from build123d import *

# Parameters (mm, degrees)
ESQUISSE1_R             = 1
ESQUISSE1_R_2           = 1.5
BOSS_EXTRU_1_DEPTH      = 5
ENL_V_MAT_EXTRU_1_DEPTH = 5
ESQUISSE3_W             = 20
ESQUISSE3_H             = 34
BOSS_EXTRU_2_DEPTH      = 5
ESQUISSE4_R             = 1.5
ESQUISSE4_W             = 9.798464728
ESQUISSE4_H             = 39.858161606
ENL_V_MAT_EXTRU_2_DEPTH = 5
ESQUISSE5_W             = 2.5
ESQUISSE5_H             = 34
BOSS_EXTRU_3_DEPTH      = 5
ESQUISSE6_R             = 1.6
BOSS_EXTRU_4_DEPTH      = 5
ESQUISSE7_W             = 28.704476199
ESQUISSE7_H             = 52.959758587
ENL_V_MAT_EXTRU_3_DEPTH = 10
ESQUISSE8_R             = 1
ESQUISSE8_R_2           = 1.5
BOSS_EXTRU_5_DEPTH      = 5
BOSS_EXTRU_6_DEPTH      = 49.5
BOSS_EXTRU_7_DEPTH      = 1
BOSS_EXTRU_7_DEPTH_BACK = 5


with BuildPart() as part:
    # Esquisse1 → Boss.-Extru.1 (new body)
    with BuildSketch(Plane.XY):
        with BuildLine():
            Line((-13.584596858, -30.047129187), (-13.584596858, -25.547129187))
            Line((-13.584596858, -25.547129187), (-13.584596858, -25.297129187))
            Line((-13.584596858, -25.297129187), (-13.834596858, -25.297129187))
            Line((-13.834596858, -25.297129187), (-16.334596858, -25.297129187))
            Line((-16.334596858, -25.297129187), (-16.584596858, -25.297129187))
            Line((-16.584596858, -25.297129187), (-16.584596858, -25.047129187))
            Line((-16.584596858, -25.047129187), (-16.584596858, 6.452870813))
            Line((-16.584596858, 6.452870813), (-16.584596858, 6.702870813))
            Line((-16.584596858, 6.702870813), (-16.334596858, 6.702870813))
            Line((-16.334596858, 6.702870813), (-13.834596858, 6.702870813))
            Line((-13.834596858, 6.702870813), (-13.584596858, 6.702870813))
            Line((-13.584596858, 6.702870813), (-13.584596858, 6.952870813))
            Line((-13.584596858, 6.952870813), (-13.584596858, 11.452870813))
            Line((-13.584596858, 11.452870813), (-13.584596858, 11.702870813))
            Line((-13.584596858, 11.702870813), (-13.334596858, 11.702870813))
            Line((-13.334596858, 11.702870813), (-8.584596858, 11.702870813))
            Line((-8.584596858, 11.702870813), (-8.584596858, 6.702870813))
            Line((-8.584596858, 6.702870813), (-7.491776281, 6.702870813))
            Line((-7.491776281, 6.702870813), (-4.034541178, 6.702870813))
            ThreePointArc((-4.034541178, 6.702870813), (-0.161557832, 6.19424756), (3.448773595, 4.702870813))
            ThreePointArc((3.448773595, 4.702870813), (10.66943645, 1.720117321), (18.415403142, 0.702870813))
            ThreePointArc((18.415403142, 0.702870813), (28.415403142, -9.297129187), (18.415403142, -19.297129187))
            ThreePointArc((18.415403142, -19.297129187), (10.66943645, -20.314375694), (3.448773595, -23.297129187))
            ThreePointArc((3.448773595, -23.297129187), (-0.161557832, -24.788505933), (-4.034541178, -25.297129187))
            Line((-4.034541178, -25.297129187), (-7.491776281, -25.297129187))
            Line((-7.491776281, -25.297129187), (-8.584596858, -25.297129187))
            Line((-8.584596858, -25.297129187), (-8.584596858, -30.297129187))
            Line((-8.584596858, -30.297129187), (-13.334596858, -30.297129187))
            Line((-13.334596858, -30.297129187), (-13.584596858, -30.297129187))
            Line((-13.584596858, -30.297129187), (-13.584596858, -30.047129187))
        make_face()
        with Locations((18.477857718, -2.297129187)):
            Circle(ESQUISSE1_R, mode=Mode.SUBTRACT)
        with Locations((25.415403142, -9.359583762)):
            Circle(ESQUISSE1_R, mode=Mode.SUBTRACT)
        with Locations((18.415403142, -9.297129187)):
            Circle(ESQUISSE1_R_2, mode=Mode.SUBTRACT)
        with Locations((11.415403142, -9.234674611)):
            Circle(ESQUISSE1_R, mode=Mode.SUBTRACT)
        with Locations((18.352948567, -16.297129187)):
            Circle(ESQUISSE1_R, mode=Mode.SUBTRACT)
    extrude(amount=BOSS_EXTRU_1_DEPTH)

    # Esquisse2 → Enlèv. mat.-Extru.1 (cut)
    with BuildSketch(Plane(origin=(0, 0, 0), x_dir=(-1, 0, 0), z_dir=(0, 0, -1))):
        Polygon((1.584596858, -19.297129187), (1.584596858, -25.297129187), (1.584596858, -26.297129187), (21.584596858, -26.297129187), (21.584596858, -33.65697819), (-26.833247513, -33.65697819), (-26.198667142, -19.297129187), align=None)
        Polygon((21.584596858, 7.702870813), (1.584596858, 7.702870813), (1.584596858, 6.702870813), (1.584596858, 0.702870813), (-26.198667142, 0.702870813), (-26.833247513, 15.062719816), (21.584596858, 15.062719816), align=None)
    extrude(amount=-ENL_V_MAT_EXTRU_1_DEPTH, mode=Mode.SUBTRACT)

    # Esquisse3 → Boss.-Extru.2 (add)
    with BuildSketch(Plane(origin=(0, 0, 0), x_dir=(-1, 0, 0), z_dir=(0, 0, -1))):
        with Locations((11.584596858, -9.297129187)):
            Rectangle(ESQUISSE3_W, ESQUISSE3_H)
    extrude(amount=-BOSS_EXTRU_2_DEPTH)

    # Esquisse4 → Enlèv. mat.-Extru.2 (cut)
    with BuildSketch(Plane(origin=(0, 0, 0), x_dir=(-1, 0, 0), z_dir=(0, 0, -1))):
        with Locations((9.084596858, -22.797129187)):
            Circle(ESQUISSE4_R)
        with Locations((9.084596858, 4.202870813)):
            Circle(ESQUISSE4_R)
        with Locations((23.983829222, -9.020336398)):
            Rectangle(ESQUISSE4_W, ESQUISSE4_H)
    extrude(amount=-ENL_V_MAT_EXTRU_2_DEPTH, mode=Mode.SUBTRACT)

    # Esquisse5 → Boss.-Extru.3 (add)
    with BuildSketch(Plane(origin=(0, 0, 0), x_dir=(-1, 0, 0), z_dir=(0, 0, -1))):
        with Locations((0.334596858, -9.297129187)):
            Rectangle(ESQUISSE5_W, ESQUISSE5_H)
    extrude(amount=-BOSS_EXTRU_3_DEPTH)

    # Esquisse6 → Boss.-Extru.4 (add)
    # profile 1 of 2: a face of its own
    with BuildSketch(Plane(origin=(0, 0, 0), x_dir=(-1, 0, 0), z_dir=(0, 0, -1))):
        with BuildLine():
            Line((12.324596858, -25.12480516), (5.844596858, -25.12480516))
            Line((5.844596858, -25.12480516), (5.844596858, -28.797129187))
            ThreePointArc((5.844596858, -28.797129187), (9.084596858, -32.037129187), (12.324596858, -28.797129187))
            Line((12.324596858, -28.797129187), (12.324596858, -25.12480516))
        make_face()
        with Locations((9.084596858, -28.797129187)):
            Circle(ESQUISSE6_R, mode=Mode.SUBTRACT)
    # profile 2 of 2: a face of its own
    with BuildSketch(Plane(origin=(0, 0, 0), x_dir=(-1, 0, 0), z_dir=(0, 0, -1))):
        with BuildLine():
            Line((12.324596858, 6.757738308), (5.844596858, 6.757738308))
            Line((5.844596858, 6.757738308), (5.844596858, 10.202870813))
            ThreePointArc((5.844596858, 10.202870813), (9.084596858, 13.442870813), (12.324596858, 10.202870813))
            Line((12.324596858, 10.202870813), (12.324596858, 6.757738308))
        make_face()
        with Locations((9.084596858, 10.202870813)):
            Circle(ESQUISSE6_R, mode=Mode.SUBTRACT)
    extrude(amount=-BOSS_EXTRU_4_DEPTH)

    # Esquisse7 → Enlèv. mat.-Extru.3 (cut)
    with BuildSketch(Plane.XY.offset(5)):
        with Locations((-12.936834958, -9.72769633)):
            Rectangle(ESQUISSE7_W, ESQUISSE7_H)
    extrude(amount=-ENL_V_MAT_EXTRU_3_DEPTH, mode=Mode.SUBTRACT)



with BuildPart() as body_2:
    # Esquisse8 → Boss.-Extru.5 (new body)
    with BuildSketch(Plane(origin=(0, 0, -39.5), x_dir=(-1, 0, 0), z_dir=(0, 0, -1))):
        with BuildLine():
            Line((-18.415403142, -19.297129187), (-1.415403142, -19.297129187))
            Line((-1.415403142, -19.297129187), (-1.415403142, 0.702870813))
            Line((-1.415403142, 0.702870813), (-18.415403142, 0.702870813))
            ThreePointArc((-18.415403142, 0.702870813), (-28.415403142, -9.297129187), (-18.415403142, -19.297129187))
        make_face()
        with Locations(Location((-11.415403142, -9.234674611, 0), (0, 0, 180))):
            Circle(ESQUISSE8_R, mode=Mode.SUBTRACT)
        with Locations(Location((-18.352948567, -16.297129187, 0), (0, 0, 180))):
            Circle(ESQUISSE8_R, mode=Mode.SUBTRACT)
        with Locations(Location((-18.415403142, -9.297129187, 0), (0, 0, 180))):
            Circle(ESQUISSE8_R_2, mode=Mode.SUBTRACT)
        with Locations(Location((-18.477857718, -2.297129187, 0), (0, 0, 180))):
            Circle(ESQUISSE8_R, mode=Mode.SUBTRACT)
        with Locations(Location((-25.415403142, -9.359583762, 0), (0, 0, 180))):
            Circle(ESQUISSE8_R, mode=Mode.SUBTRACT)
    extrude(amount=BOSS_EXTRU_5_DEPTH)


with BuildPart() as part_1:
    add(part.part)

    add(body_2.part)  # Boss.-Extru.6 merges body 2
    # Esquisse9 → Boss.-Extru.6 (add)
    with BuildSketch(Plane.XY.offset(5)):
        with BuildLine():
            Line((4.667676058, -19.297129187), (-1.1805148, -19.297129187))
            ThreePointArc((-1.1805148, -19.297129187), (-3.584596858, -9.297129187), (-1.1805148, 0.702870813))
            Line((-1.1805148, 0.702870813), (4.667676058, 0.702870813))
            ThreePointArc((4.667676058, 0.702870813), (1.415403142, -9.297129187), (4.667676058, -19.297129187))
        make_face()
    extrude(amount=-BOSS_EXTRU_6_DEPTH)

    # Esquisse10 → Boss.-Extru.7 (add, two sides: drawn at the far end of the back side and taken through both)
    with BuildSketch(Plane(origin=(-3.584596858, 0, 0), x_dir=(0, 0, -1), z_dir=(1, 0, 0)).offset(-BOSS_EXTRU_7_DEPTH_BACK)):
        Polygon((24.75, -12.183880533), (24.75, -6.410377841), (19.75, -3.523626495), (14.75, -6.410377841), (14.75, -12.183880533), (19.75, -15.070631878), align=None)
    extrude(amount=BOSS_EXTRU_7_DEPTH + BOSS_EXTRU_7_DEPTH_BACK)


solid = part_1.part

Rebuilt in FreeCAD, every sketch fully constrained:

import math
import FreeCAD as App
import Part
import Sketcher
Q = App.Units.Quantity

doc = App.newDocument("Part")
body = doc.addObject("PartDesign::Body", "Body")

# Sketch on XY plane
sketch1 = body.newObject("Sketcher::SketchObject", "Sketch")
sketch1.AttachmentSupport = (doc.getObject("XY_Plane"), [""])
sketch1.MapMode = "FlatFace"
sketch1.addGeometry(Part.LineSegment(App.Vector(-16.6, -25.3, 0), App.Vector(-13.6, -25.3, 0)), False)
sketch1.addGeometry(Part.LineSegment(App.Vector(-13.6, -25.3, 0), App.Vector(-13.6, -30.3, 0)), False)
sketch1.addGeometry(Part.LineSegment(App.Vector(-13.6, -30.3, 0), App.Vector(-8.6, -30.3, 0)), False)
sketch1.addGeometry(Part.LineSegment(App.Vector(-8.6, -30.3, 0), App.Vector(-8.6, -25.3, 0)), False)
sketch1.addGeometry(Part.LineSegment(App.Vector(-8.6, -25.3, 0), App.Vector(-4, -25.3, 0)), False)
sketch1.addGeometry(Part.ArcOfCircle(Part.Circle(App.Vector(-4, -10.3, 0), App.Vector(0, 0, 1), 15), math.radians(-90), math.radians(-60)), False)
sketch1.addGeometry(Part.ArcOfCircle(Part.Circle(App.Vector(18.4, -49.3, 0), App.Vector(0, 0, 1), 30), math.radians(90), math.radians(120)), False)
sketch1.addGeometry(Part.ArcOfCircle(Part.Circle(App.Vector(18.4, -9.3, 0), App.Vector(0, 0, 1), 10), math.radians(-90), math.radians(90)), False)
sketch1.addGeometry(Part.ArcOfCircle(Part.Circle(App.Vector(18.4, 30.7, 0), App.Vector(0, 0, 1), 30), math.radians(-120), math.radians(-90)), False)
sketch1.addGeometry(Part.ArcOfCircle(Part.Circle(App.Vector(-4, -8.3, 0), App.Vector(0, 0, 1), 15), math.radians(60), math.radians(90)), False)
sketch1.addGeometry(Part.LineSegment(App.Vector(-4, 6.7, 0), App.Vector(-8.6, 6.7, 0)), False)
sketch1.addGeometry(Part.LineSegment(App.Vector(-8.6, 6.7, 0), App.Vector(-8.6, 11.7, 0)), False)
sketch1.addGeometry(Part.LineSegment(App.Vector(-8.6, 11.7, 0), App.Vector(-13.6, 11.7, 0)), False)
sketch1.addGeometry(Part.LineSegment(App.Vector(-13.6, 11.7, 0), App.Vector(-13.6, 6.7, 0)), False)
sketch1.addGeometry(Part.LineSegment(App.Vector(-13.6, 6.7, 0), App.Vector(-16.6, 6.7, 0)), False)
sketch1.addGeometry(Part.LineSegment(App.Vector(-16.6, 6.7, 0), App.Vector(-16.6, -25.3, 0)), False)
sketch1.addGeometry(Part.Circle(App.Vector(25.4, -9.4, 0), App.Vector(0, 0, 1), 1), False)
sketch1.addGeometry(Part.Circle(App.Vector(18.4, -16.3, 0), App.Vector(0, 0, 1), 1), False)
sketch1.addGeometry(Part.Circle(App.Vector(18.5, -2.3, 0), App.Vector(0, 0, 1), 1), False)
sketch1.addGeometry(Part.Circle(App.Vector(18.4, -9.3, 0), App.Vector(0, 0, 1), 1.5), False)
sketch1.addGeometry(Part.Circle(App.Vector(11.4, -9.2, 0), App.Vector(0, 0, 1), 1), False)
sketch1.addConstraint(Sketcher.Constraint("Coincident", 0, 2, 1, 1))
sketch1.addConstraint(Sketcher.Constraint("Coincident", 1, 2, 2, 1))
sketch1.addConstraint(Sketcher.Constraint("Coincident", 2, 2, 3, 1))
sketch1.addConstraint(Sketcher.Constraint("Coincident", 3, 2, 4, 1))
sketch1.addConstraint(Sketcher.Constraint("Tangent", 4, 2, 5, 1))
sketch1.addConstraint(Sketcher.Constraint("Tangent", 5, 2, 6, 2))
sketch1.addConstraint(Sketcher.Constraint("Tangent", 6, 1, 7, 1))
sketch1.addConstraint(Sketcher.Constraint("Tangent", 7, 2, 8, 2))
sketch1.addConstraint(Sketcher.Constraint("Tangent", 8, 1, 9, 1))
sketch1.addConstraint(Sketcher.Constraint("Tangent", 9, 2, 10, 1))
sketch1.addConstraint(Sketcher.Constraint("Coincident", 10, 2, 11, 1))
sketch1.addConstraint(Sketcher.Constraint("Coincident", 11, 2, 12, 1))
sketch1.addConstraint(Sketcher.Constraint("Coincident", 12, 2, 13, 1))
sketch1.addConstraint(Sketcher.Constraint("Coincident", 13, 2, 14, 1))
sketch1.addConstraint(Sketcher.Constraint("Coincident", 14, 2, 15, 1))
sketch1.addConstraint(Sketcher.Constraint("Coincident", 15, 2, 0, 1))
sketch1.addConstraint(Sketcher.Constraint("Horizontal", 0))
sketch1.addConstraint(Sketcher.Constraint("Vertical", 1))
sketch1.addConstraint(Sketcher.Constraint("Horizontal", 2))
sketch1.addConstraint(Sketcher.Constraint("Vertical", 3))
sketch1.addConstraint(Sketcher.Constraint("Horizontal", 4))
sketch1.addConstraint(Sketcher.Constraint("Horizontal", 10))
sketch1.addConstraint(Sketcher.Constraint("Vertical", 11))
sketch1.addConstraint(Sketcher.Constraint("Horizontal", 12))
sketch1.addConstraint(Sketcher.Constraint("Vertical", 13))
sketch1.addConstraint(Sketcher.Constraint("Horizontal", 14))
sketch1.addConstraint(Sketcher.Constraint("Vertical", 15))
sketch1.addConstraint(Sketcher.Constraint("Coincident", 19, 3, 7, 3))
sketch1.addConstraint(Sketcher.Constraint("Equal", 6, 8))
sketch1.addConstraint(Sketcher.Constraint("Equal", 5, 9))
sketch1.addConstraint(Sketcher.Constraint("Equal", 16, 17))
sketch1.addConstraint(Sketcher.Constraint("Equal", 17, 18))
sketch1.addConstraint(Sketcher.Constraint("Equal", 18, 20))
sketch1.addConstraint(Sketcher.Constraint("Horizontal", 0, 2, 3, 2))
sketch1.addConstraint(Sketcher.Constraint("Horizontal", 10, 2, 13, 2))
sketch1.addConstraint(Sketcher.Constraint("Vertical", 6, 3, 7, 3))
sketch1.addConstraint(Sketcher.Constraint("Vertical", 7, 3, 8, 3))
sketch1.addConstraint(Sketcher.Constraint("Vertical", 5, 3, 9, 3))
sketch1.addConstraint(Sketcher.Constraint("Vertical", 3, 2, 10, 2))
sketch1.addConstraint(Sketcher.Constraint("Vertical", 1, 2, 12, 2))
sketch1.addConstraint(Sketcher.Constraint("Equal", 12, 1))
sketch1.addConstraint(Sketcher.Constraint("Equal", 3, 11))
sketch1.addConstraint(Sketcher.Constraint("Diameter", 16, Q("2 mm")))
sketch1.addConstraint(Sketcher.Constraint("Diameter", 19, Q("3 mm")))
sketch1.addConstraint(Sketcher.Constraint("Radius", 5, Q("15 mm")))
sketch1.addConstraint(Sketcher.Constraint("Radius", 6, Q("30 mm")))
sketch1.addConstraint(Sketcher.Constraint("Radius", 7, Q("10 mm")))
sketch1.addConstraint(Sketcher.Constraint("DistanceX", 0, 1, 0, 2, Q("3 mm")))
sketch1.addConstraint(Sketcher.Constraint("DistanceX", 2, 1, 2, 2, Q("5 mm")))
sketch1.addConstraint(Sketcher.Constraint("DistanceY", 15, 2, 15, 1, Q("32 mm")))
sketch1.addConstraint(Sketcher.Constraint("DistanceX", 7, 3, 16, 3, Q("7 mm")))
sketch1.addConstraint(Sketcher.Constraint("DistanceY", 17, 3, 7, 3, Q("7 mm")))
sketch1.addConstraint(Sketcher.Constraint("DistanceY", 7, 3, 18, 3, Q("7 mm")))
sketch1.addConstraint(Sketcher.Constraint("DistanceX", 20, 3, 7, 3, Q("7 mm")))
sketch1.addConstraint(Sketcher.Constraint("DistanceX", 0, 2, 20, 3, Q("25 mm")))
sketch1.addConstraint(Sketcher.Constraint("DistanceX", 9, 3, 18, 3, Q("22.512399 mm")))
sketch1.addConstraint(Sketcher.Constraint("DistanceX", 5, 3, -1, 1, Q("4.034541 mm")))
sketch1.addConstraint(Sketcher.Constraint("DistanceY", 5, 3, -1, 1, Q("10.297129 mm")))
sketch1.addConstraint(Sketcher.Constraint("DistanceX", -1, 1, 17, 3, Q("18.352949 mm")))
sketch1.addConstraint(Sketcher.Constraint("DistanceY", 16, 3, 20, 3, Q("0.124909 mm")))
sketch1.addConstraint(Sketcher.Constraint("DistanceY", 16, 3, -1, 1, Q("9.359584 mm")))
pad1 = body.newObject("PartDesign::Pad", "Pad")
pad1.Profile = sketch1
pad1.Length = 5

# Sketch on XY plane
sketch2 = body.newObject("Sketcher::SketchObject", "Sketch001")
sketch2.AttachmentSupport = (doc.getObject("XY_Plane"), [""])
sketch2.MapMode = "FlatFace"
sketch2.addGeometry(Part.LineSegment(App.Vector(-2, -26, 0), App.Vector(-2, -19, 0)), False)
sketch2.addGeometry(Part.LineSegment(App.Vector(-2, -19, 0), App.Vector(26, -19, 0)), False)
sketch2.addGeometry(Part.LineSegment(App.Vector(26, -19, 0), App.Vector(27, -34, 0)), False)
sketch2.addGeometry(Part.LineSegment(App.Vector(27, -34, 0), App.Vector(-22, -34, 0)), False)
sketch2.addGeometry(Part.LineSegment(App.Vector(-22, -34, 0), App.Vector(-22, -26, 0)), False)
sketch2.addGeometry(Part.LineSegment(App.Vector(-22, -26, 0), App.Vector(-2, -26, 0)), False)
sketch2.addGeometry(Part.LineSegment(App.Vector(-2, 8, 0), App.Vector(-22, 8, 0)), False)
sketch2.addGeometry(Part.LineSegment(App.Vector(-22, 8, 0), App.Vector(-22, 15, 0)), False)
sketch2.addGeometry(Part.LineSegment(App.Vector(-22, 15, 0), App.Vector(27, 15, 0)), False)
sketch2.addGeometry(Part.LineSegment(App.Vector(27, 15, 0), App.Vector(26, 1, 0)), False)
sketch2.addGeometry(Part.LineSegment(App.Vector(26, 1, 0), App.Vector(-2, 1, 0)), False)
sketch2.addGeometry(Part.LineSegment(App.Vector(-2, 1, 0), App.Vector(-2, 8, 0)), False)
sketch2.addConstraint(Sketcher.Constraint("Coincident", 0, 2, 1, 1))
sketch2.addConstraint(Sketcher.Constraint("Coincident", 1, 2, 2, 1))
sketch2.addConstraint(Sketcher.Constraint("Coincident", 2, 2, 3, 1))
sketch2.addConstraint(Sketcher.Constraint("Coincident", 3, 2, 4, 1))
sketch2.addConstraint(Sketcher.Constraint("Coincident", 4, 2, 5, 1))
sketch2.addConstraint(Sketcher.Constraint("Coincident", 5, 2, 0, 1))
sketch2.addConstraint(Sketcher.Constraint("Coincident", 6, 2, 7, 1))
sketch2.addConstraint(Sketcher.Constraint("Coincident", 7, 2, 8, 1))
sketch2.addConstraint(Sketcher.Constraint("Coincident", 8, 2, 9, 1))
sketch2.addConstraint(Sketcher.Constraint("Coincident", 9, 2, 10, 1))
sketch2.addConstraint(Sketcher.Constraint("Coincident", 10, 2, 11, 1))
sketch2.addConstraint(Sketcher.Constraint("Coincident", 11, 2, 6, 1))
sketch2.addConstraint(Sketcher.Constraint("Vertical", 0))
sketch2.addConstraint(Sketcher.Constraint("Horizontal", 1))
sketch2.addConstraint(Sketcher.Constraint("Horizontal", 3))
sketch2.addConstraint(Sketcher.Constraint("Vertical", 4))
sketch2.addConstraint(Sketcher.Constraint("Horizontal", 5))
sketch2.addConstraint(Sketcher.Constraint("Horizontal", 6))
sketch2.addConstraint(Sketcher.Constraint("Vertical", 7))
sketch2.addConstraint(Sketcher.Constraint("Horizontal", 8))
sketch2.addConstraint(Sketcher.Constraint("Horizontal", 10))
sketch2.addConstraint(Sketcher.Constraint("Vertical", 11))
sketch2.addConstraint(Sketcher.Constraint("Vertical", 4, 2, 6, 2))
sketch2.addConstraint(Sketcher.Constraint("Vertical", 2, 2, 8, 2))
sketch2.addConstraint(Sketcher.Constraint("Vertical", 1, 2, 9, 2))
sketch2.addConstraint(Sketcher.Constraint("Vertical", 5, 2, 10, 2))
sketch2.addConstraint(Sketcher.Constraint("Equal", 4, 7))
sketch2.addConstraint(Sketcher.Constraint("Equal", 0, 11))
sketch2.addConstraint(Sketcher.Constraint("DistanceX", 5, 1, 5, 2, Q("20 mm")))
sketch2.addConstraint(Sketcher.Constraint("DistanceY", 0, 1, 0, 2, Q("7 mm")))
sketch2.addConstraint(Sketcher.Constraint("DistanceY", 0, 2, 6, 2, Q("27 mm")))
sketch2.addConstraint(Sketcher.Constraint("DistanceY", 4, 1, 4, 2, Q("7.359849 mm")))
sketch2.addConstraint(Sketcher.Constraint("DistanceX", 1, 1, 1, 2, Q("27.783264 mm")))
sketch2.addConstraint(Sketcher.Constraint("DistanceX", 3, 2, 3, 1, Q("48.417844 mm")))
sketch2.addConstraint(Sketcher.Constraint("DistanceY", 0, 2, -1, 1, Q("19.297129 mm")))
sketch2.addConstraint(Sketcher.Constraint("DistanceX", 0, 2, -1, 1, Q("1.584597 mm")))
pocket1 = body.newObject("PartDesign::Pocket", "Pocket")
pocket1.Profile = sketch2
pocket1.Length = 5
pocket1.Reversed = True

# Sketch on XY plane
sketch3 = body.newObject("Sketcher::SketchObject", "Sketch002")
sketch3.AttachmentSupport = (doc.getObject("XY_Plane"), [""])
sketch3.MapMode = "FlatFace"
sketch3.addGeometry(Part.LineSegment(App.Vector(-2, 8, 0), App.Vector(-2, -26, 0)), False)
sketch3.addGeometry(Part.LineSegment(App.Vector(-2, -26, 0), App.Vector(-22, -26, 0)), False)
sketch3.addGeometry(Part.LineSegment(App.Vector(-22, -26, 0), App.Vector(-22, 8, 0)), False)
sketch3.addGeometry(Part.LineSegment(App.Vector(-22, 8, 0), App.Vector(-2, 8, 0)), False)
sketch3.addConstraint(Sketcher.Constraint("Coincident", 0, 2, 1, 1))
sketch3.addConstraint(Sketcher.Constraint("Coincident", 1, 2, 2, 1))
sketch3.addConstraint(Sketcher.Constraint("Coincident", 2, 2, 3, 1))
sketch3.addConstraint(Sketcher.Constraint("Coincident", 3, 2, 0, 1))
sketch3.addConstraint(Sketcher.Constraint("Vertical", 0))
sketch3.addConstraint(Sketcher.Constraint("Horizontal", 1))
sketch3.addConstraint(Sketcher.Constraint("Vertical", 2))
sketch3.addConstraint(Sketcher.Constraint("Horizontal", 3))
sketch3.addConstraint(Sketcher.Constraint("DistanceX", 1, 2, 1, 1, Q("20 mm")))
sketch3.addConstraint(Sketcher.Constraint("DistanceY", 0, 2, 0, 1, Q("34 mm")))
sketch3.addConstraint(Sketcher.Constraint("DistanceY", 0, 2, -1, 1, Q("26.297129 mm")))
sketch3.addConstraint(Sketcher.Constraint("DistanceX", 0, 2, -1, 1, Q("1.584597 mm")))
pad2 = body.newObject("PartDesign::Pad", "Pad001")
pad2.Profile = sketch3
pad2.Length = 5

# Sketch on XY plane
sketch4 = body.newObject("Sketcher::SketchObject", "Sketch003")
sketch4.AttachmentSupport = (doc.getObject("XY_Plane"), [""])
sketch4.MapMode = "FlatFace"
sketch4.addGeometry(Part.Circle(App.Vector(-9.1, -22.8, 0), App.Vector(0, 0, 1), 1.5), False)
sketch4.addGeometry(Part.Circle(App.Vector(-9.1, 4.2, 0), App.Vector(0, 0, 1), 1.5), False)
sketch4.addGeometry(Part.LineSegment(App.Vector(-19.1, 10.9, 0), App.Vector(-19.1, -28.9, 0)), False)
sketch4.addGeometry(Part.LineSegment(App.Vector(-19.1, -28.9, 0), App.Vector(-28.9, -28.9, 0)), False)
sketch4.addGeometry(Part.LineSegment(App.Vector(-28.9, -28.9, 0), App.Vector(-28.9, 10.9, 0)), False)
sketch4.addGeometry(Part.LineSegment(App.Vector(-28.9, 10.9, 0), App.Vector(-19.1, 10.9, 0)), False)
sketch4.addConstraint(Sketcher.Constraint("Coincident", 2, 2, 3, 1))
sketch4.addConstraint(Sketcher.Constraint("Coincident", 3, 2, 4, 1))
sketch4.addConstraint(Sketcher.Constraint("Coincident", 4, 2, 5, 1))
sketch4.addConstraint(Sketcher.Constraint("Coincident", 5, 2, 2, 1))
sketch4.addConstraint(Sketcher.Constraint("Vertical", 2))
sketch4.addConstraint(Sketcher.Constraint("Horizontal", 3))
sketch4.addConstraint(Sketcher.Constraint("Vertical", 4))
sketch4.addConstraint(Sketcher.Constraint("Horizontal", 5))
sketch4.addConstraint(Sketcher.Constraint("Equal", 0, 1))
sketch4.addConstraint(Sketcher.Constraint("Vertical", 0, 3, 1, 3))
sketch4.addConstraint(Sketcher.Constraint("Diameter", 0, Q("3 mm")))
sketch4.addConstraint(Sketcher.Constraint("DistanceY", 0, 3, 1, 3, Q("27 mm")))
sketch4.addConstraint(Sketcher.Constraint("DistanceX", 2, 2, 0, 3, Q("10 mm")))
sketch4.addConstraint(Sketcher.Constraint("DistanceY", 2, 2, 2, 1, Q("39.858162 mm")))
sketch4.addConstraint(Sketcher.Constraint("DistanceX", 3, 2, 3, 1, Q("9.798465 mm")))
sketch4.addConstraint(Sketcher.Constraint("DistanceY", 0, 3, -1, 1, Q("22.797129 mm")))
sketch4.addConstraint(Sketcher.Constraint("DistanceX", 3, 2, -1, 1, Q("28.883062 mm")))
sketch4.addConstraint(Sketcher.Constraint("DistanceY", 2, 2, 0, 3, Q("6.152288 mm")))
pocket2 = body.newObject("PartDesign::Pocket", "Pocket001")
pocket2.Profile = sketch4
pocket2.Length = 5
pocket2.Reversed = True

# Sketch on XY plane
sketch5 = body.newObject("Sketcher::SketchObject", "Sketch004")
sketch5.AttachmentSupport = (doc.getObject("XY_Plane"), [""])
sketch5.MapMode = "FlatFace"
sketch5.addGeometry(Part.LineSegment(App.Vector(0.9, 7.7, 0), App.Vector(0.9, -26.3, 0)), False)
sketch5.addGeometry(Part.LineSegment(App.Vector(0.9, -26.3, 0), App.Vector(-1.6, -26.3, 0)), False)
sketch5.addGeometry(Part.LineSegment(App.Vector(-1.6, -26.3, 0), App.Vector(-1.6, 7.7, 0)), False)
sketch5.addGeometry(Part.LineSegment(App.Vector(-1.6, 7.7, 0), App.Vector(0.9, 7.7, 0)), False)
sketch5.addConstraint(Sketcher.Constraint("Coincident", 0, 2, 1, 1))
sketch5.addConstraint(Sketcher.Constraint("Coincident", 1, 2, 2, 1))
sketch5.addConstraint(Sketcher.Constraint("Coincident", 2, 2, 3, 1))
sketch5.addConstraint(Sketcher.Constraint("Coincident", 3, 2, 0, 1))
sketch5.addConstraint(Sketcher.Constraint("Vertical", 0))
sketch5.addConstraint(Sketcher.Constraint("Horizontal", 1))
sketch5.addConstraint(Sketcher.Constraint("Vertical", 2))
sketch5.addConstraint(Sketcher.Constraint("Horizontal", 3))
sketch5.addConstraint(Sketcher.Constraint("DistanceY", 0, 2, 0, 1, Q("34 mm")))
sketch5.addConstraint(Sketcher.Constraint("DistanceX", 1, 2, 1, 1, Q("2.5 mm")))
sketch5.addConstraint(Sketcher.Constraint("DistanceY", 0, 2, -1, 1, Q("26.297129 mm")))
sketch5.addConstraint(Sketcher.Constraint("DistanceX", -1, 1, 0, 2, Q("0.915403 mm")))
pad3 = body.newObject("PartDesign::Pad", "Pad002")
pad3.Profile = sketch5
pad3.Length = 5

# Sketch on XY plane
sketch6 = body.newObject("Sketcher::SketchObject", "Sketch005")
sketch6.AttachmentSupport = (doc.getObject("XY_Plane"), [""])
sketch6.MapMode = "FlatFace"
sketch6.addGeometry(Part.LineSegment(App.Vector(-12.3, -25.1, 0), App.Vector(-5.8, -25.1, 0)), False)
sketch6.addGeometry(Part.LineSegment(App.Vector(-5.8, -25.1, 0), App.Vector(-5.8, -28.8, 0)), False)
sketch6.addGeometry(Part.ArcOfCircle(Part.Circle(App.Vector(-9.1, -28.8, 0), App.Vector(0, 0, 1), 3.2), math.radians(180), math.radians(360)), False)
sketch6.addGeometry(Part.LineSegment(App.Vector(-12.3, -28.8, 0), App.Vector(-12.3, -25.1, 0)), False)
sketch6.addGeometry(Part.Circle(App.Vector(-9.1, -28.8, 0), App.Vector(0, 0, 1), 1.6), False)
sketch6.addGeometry(Part.LineSegment(App.Vector(-5.8, 6.8, 0), App.Vector(-12.3, 6.8, 0)), False)
sketch6.addGeometry(Part.LineSegment(App.Vector(-12.3, 6.8, 0), App.Vector(-12.3, 10.2, 0)), False)
sketch6.addGeometry(Part.ArcOfCircle(Part.Circle(App.Vector(-9.1, 10.2, 0), App.Vector(0, 0, 1), 3.2), math.radians(0), math.radians(180)), False)
sketch6.addGeometry(Part.LineSegment(App.Vector(-5.8, 10.2, 0), App.Vector(-5.8, 6.8, 0)), False)
sketch6.addGeometry(Part.Circle(App.Vector(-9.1, 10.2, 0), App.Vector(0, 0, 1), 1.6), False)
sketch6.addConstraint(Sketcher.Constraint("Coincident", 0, 2, 1, 1))
sketch6.addConstraint(Sketcher.Constraint("Tangent", 1, 2, 2, 2))
sketch6.addConstraint(Sketcher.Constraint("Tangent", 2, 1, 3, 1))
sketch6.addConstraint(Sketcher.Constraint("Coincident", 3, 2, 0, 1))
sketch6.addConstraint(Sketcher.Constraint("Coincident", 5, 2, 6, 1))
sketch6.addConstraint(Sketcher.Constraint("Tangent", 6, 2, 7, 2))
sketch6.addConstraint(Sketcher.Constraint("Tangent", 7, 1, 8, 1))
sketch6.addConstraint(Sketcher.Constraint("Coincident", 8, 2, 5, 1))
sketch6.addConstraint(Sketcher.Constraint("Horizontal", 0))
sketch6.addConstraint(Sketcher.Constraint("Vertical", 1))
sketch6.addConstraint(Sketcher.Constraint("Vertical", 3))
sketch6.addConstraint(Sketcher.Constraint("Horizontal", 5))
sketch6.addConstraint(Sketcher.Constraint("Vertical", 6))
sketch6.addConstraint(Sketcher.Constraint("Vertical", 8))
sketch6.addConstraint(Sketcher.Constraint("Coincident", 4, 3, 2, 3))
sketch6.addConstraint(Sketcher.Constraint("Coincident", 9, 3, 7, 3))
sketch6.addConstraint(Sketcher.Constraint("Equal", 2, 7))
sketch6.addConstraint(Sketcher.Constraint("Equal", 4, 9))
sketch6.addConstraint(Sketcher.Constraint("Vertical", 4, 3, 7, 3))
sketch6.addConstraint(Sketcher.Constraint("Diameter", 4, Q("3.2 mm")))
sketch6.addConstraint(Sketcher.Constraint("Radius", 2, Q("3.24 mm")))
sketch6.addConstraint(Sketcher.Constraint("DistanceY", 2, 3, 7, 3, Q("39 mm")))
sketch6.addConstraint(Sketcher.Constraint("DistanceY", 1, 2, 1, 1, Q("3.672324 mm")))
sketch6.addConstraint(Sketcher.Constraint("DistanceY", 6, 1, 6, 2, Q("3.445133 mm")))
sketch6.addConstraint(Sketcher.Constraint("DistanceY", 2, 3, -1, 1, Q("28.797129 mm")))
sketch6.addConstraint(Sketcher.Constraint("DistanceX", 2, 3, -1, 1, Q("9.084597 mm")))
pad4 = body.newObject("PartDesign::Pad", "Pad003")
pad4.Profile = sketch6
pad4.Length = 5

# Sketch on XY plane
sketch7 = body.newObject("Sketcher::SketchObject", "Sketch006")
sketch7.AttachmentSupport = (doc.getObject("XY_Plane"), [""])
sketch7.MapMode = "FlatFace"
sketch7.AttachmentOffset = App.Placement(App.Vector(0, 0, 5), App.Rotation())
sketch7.addGeometry(Part.LineSegment(App.Vector(-27, 17, 0), App.Vector(-27, -36, 0)), False)
sketch7.addGeometry(Part.LineSegment(App.Vector(-27, -36, 0), App.Vector(1, -36, 0)), False)
sketch7.addGeometry(Part.LineSegment(App.Vector(1, -36, 0), App.Vector(1, 17, 0)), False)
sketch7.addGeometry(Part.LineSegment(App.Vector(1, 17, 0), App.Vector(-27, 17, 0)), False)
sketch7.addConstraint(Sketcher.Constraint("Coincident", 0, 2, 1, 1))
sketch7.addConstraint(Sketcher.Constraint("Coincident", 1, 2, 2, 1))
sketch7.addConstraint(Sketcher.Constraint("Coincident", 2, 2, 3, 1))
sketch7.addConstraint(Sketcher.Constraint("Coincident", 3, 2, 0, 1))
sketch7.addConstraint(Sketcher.Constraint("Vertical", 0))
sketch7.addConstraint(Sketcher.Constraint("Horizontal", 1))
sketch7.addConstraint(Sketcher.Constraint("Vertical", 2))
sketch7.addConstraint(Sketcher.Constraint("Horizontal", 3))
sketch7.addConstraint(Sketcher.Constraint("DistanceY", 0, 2, 0, 1, Q("52.959759 mm")))
sketch7.addConstraint(Sketcher.Constraint("DistanceX", 1, 1, 1, 2, Q("28.704476 mm")))
sketch7.addConstraint(Sketcher.Constraint("DistanceX", 0, 2, -1, 1, Q("27.289073 mm")))
sketch7.addConstraint(Sketcher.Constraint("DistanceY", 0, 2, -1, 1, Q("36.207576 mm")))
pocket3 = body.newObject("PartDesign::Pocket", "Pocket002")
pocket3.Profile = sketch7
pocket3.Length = 10
body2 = doc.addObject("PartDesign::Body", "Body001")

# Sketch on XY plane
sketch8 = body2.newObject("Sketcher::SketchObject", "Sketch007")
sketch8.AttachmentSupport = (doc.getObject("XY_Plane001"), [""])
sketch8.MapMode = "FlatFace"
sketch8.AttachmentOffset = App.Placement(App.Vector(0, 0, -39.5), App.Rotation())
sketch8.addGeometry(Part.LineSegment(App.Vector(18.4, -19.3, 0), App.Vector(1.4, -19.3, 0)), False)
sketch8.addGeometry(Part.LineSegment(App.Vector(1.4, -19.3, 0), App.Vector(1.4, 0.7, 0)), False)
sketch8.addGeometry(Part.LineSegment(App.Vector(1.4, 0.7, 0), App.Vector(18.4, 0.7, 0)), False)
sketch8.addGeometry(Part.ArcOfCircle(Part.Circle(App.Vector(18.4, -9.3, 0), App.Vector(0, 0, 1), 10), math.radians(-90), math.radians(90)), False)
sketch8.addGeometry(Part.Circle(App.Vector(25.4, -9.4, 0), App.Vector(0, 0, 1), 1), False)
sketch8.addGeometry(Part.Circle(App.Vector(18.4, -16.3, 0), App.Vector(0, 0, 1), 1), False)
sketch8.addGeometry(Part.Circle(App.Vector(18.5, -2.3, 0), App.Vector(0, 0, 1), 1), False)
sketch8.addGeometry(Part.Circle(App.Vector(18.4, -9.3, 0), App.Vector(0, 0, 1), 1.5), False)
sketch8.addGeometry(Part.Circle(App.Vector(11.4, -9.2, 0), App.Vector(0, 0, 1), 1), False)
sketch8.addConstraint(Sketcher.Constraint("Coincident", 0, 2, 1, 1))
sketch8.addConstraint(Sketcher.Constraint("Coincident", 1, 2, 2, 1))
sketch8.addConstraint(Sketcher.Constraint("Tangent", 2, 2, 3, 2))
sketch8.addConstraint(Sketcher.Constraint("Tangent", 3, 1, 0, 1))
sketch8.addConstraint(Sketcher.Constraint("Horizontal", 0))
sketch8.addConstraint(Sketcher.Constraint("Vertical", 1))
sketch8.addConstraint(Sketcher.Constraint("Horizontal", 2))
sketch8.addConstraint(Sketcher.Constraint("Coincident", 7, 3, 3, 3))
sketch8.addConstraint(Sketcher.Constraint("Equal", 4, 5))
sketch8.addConstraint(Sketcher.Constraint("Equal", 5, 6))
sketch8.addConstraint(Sketcher.Constraint("Equal", 6, 8))
sketch8.addConstraint(Sketcher.Constraint("Diameter", 4, Q("2 mm")))
sketch8.addConstraint(Sketcher.Constraint("Diameter", 7, Q("3 mm")))
sketch8.addConstraint(Sketcher.Constraint("Radius", 3, Q("10 mm")))
sketch8.addConstraint(Sketcher.Constraint("DistanceX", 0, 2, 0, 1, Q("17 mm")))
sketch8.addConstraint(Sketcher.Constraint("DistanceX", 3, 3, 4, 3, Q("7 mm")))
sketch8.addConstraint(Sketcher.Constraint("DistanceY", 5, 3, 3, 3, Q("7 mm")))
sketch8.addConstraint(Sketcher.Constraint("DistanceY", 3, 3, 6, 3, Q("7 mm")))
sketch8.addConstraint(Sketcher.Constraint("DistanceX", 8, 3, 3, 3, Q("7 mm")))
sketch8.addConstraint(Sketcher.Constraint("DistanceY", 3, 3, -1, 1, Q("9.297129 mm")))
sketch8.addConstraint(Sketcher.Constraint("DistanceX", -1, 1, 5, 3, Q("18.352949 mm")))
sketch8.addConstraint(Sketcher.Constraint("DistanceX", 5, 3, 6, 3, Q("0.124909 mm")))
sketch8.addConstraint(Sketcher.Constraint("DistanceY", 4, 3, 8, 3, Q("0.124909 mm")))
sketch8.addConstraint(Sketcher.Constraint("DistanceX", -1, 1, 3, 3, Q("18.415403 mm")))
sketch8.addConstraint(Sketcher.Constraint("DistanceY", 4, 3, -1, 1, Q("9.359584 mm")))
pad5 = body2.newObject("PartDesign::Pad", "Pad004")
pad5.Profile = sketch8
pad5.Length = 5
pad5.Reversed = True
body.AllowCompound = True
doc.recompute()

boolean = body.newObject("PartDesign::Boolean", "Boolean")
boolean.Type = "Fuse"
boolean.addObjects([body2])

# Sketch on XY plane
sketch9 = body.newObject("Sketcher::SketchObject", "Sketch008")
sketch9.AttachmentSupport = (doc.getObject("XY_Plane"), [""])
sketch9.MapMode = "FlatFace"
sketch9.AttachmentOffset = App.Placement(App.Vector(0, 0, 5), App.Rotation())
sketch9.addGeometry(Part.LineSegment(App.Vector(-1, -19, 0), App.Vector(5, -19, 0)), False)
sketch9.addGeometry(Part.ArcOfCircle(Part.Circle(App.Vector(18, -9, 0), App.Vector(0, 0, 1), 17), math.radians(144), math.radians(216)), False)
sketch9.addGeometry(Part.LineSegment(App.Vector(5, 1, 0), App.Vector(-1, 1, 0)), False)
sketch9.addGeometry(Part.ArcOfCircle(Part.Circle(App.Vector(18, -9, 0), App.Vector(0, 0, 1), 22), math.radians(153), math.radians(207)), False)
sketch9.addConstraint(Sketcher.Constraint("Coincident", 0, 2, 1, 2))
sketch9.addConstraint(Sketcher.Constraint("Coincident", 1, 1, 2, 1))
sketch9.addConstraint(Sketcher.Constraint("Coincident", 2, 2, 3, 1))
sketch9.addConstraint(Sketcher.Constraint("Coincident", 3, 2, 0, 1))
sketch9.addConstraint(Sketcher.Constraint("Horizontal", 0))
sketch9.addConstraint(Sketcher.Constraint("Horizontal", 2))
sketch9.addConstraint(Sketcher.Constraint("Coincident", 3, 3, 1, 3))
sketch9.addConstraint(Sketcher.Constraint("Vertical", 0, 2, 1, 1))
sketch9.addConstraint(Sketcher.Constraint("Radius", 1, Q("17 mm")))
sketch9.addConstraint(Sketcher.Constraint("Radius", 3, Q("22 mm")))
sketch9.addConstraint(Sketcher.Constraint("DistanceY", 0, 2, 1, 3, Q("10 mm")))
sketch9.addConstraint(Sketcher.Constraint("DistanceY", 1, 3, -1, 1, Q("9.297129 mm")))
sketch9.addConstraint(Sketcher.Constraint("DistanceX", -1, 1, 1, 3, Q("18.415403 mm")))
pad6 = body.newObject("PartDesign::Pad", "Pad005")
pad6.Profile = sketch9
pad6.Length = 49.5
pad6.Reversed = True

# Sketch on YZ plane
sketch10 = body.newObject("Sketcher::SketchObject", "Sketch009")
sketch10.AttachmentSupport = (doc.getObject("YZ_Plane"), [""])
sketch10.MapMode = "FlatFace"
sketch10.AttachmentOffset = App.Placement(App.Vector(0, 0, -3.584597), App.Rotation())
sketch10.addGeometry(Part.LineSegment(App.Vector(-12, -25, 0), App.Vector(-6, -25, 0)), False)
sketch10.addGeometry(Part.LineSegment(App.Vector(-6, -25, 0), App.Vector(-4, -20, 0)), False)
sketch10.addGeometry(Part.LineSegment(App.Vector(-4, -20, 0), App.Vector(-6, -15, 0)), False)
sketch10.addGeometry(Part.LineSegment(App.Vector(-6, -15, 0), App.Vector(-12, -15, 0)), False)
sketch10.addGeometry(Part.LineSegment(App.Vector(-12, -15, 0), App.Vector(-15, -20, 0)), False)
sketch10.addGeometry(Part.LineSegment(App.Vector(-15, -20, 0), App.Vector(-12, -25, 0)), False)
sketch10.addConstraint(Sketcher.Constraint("Coincident", 0, 2, 1, 1))
sketch10.addConstraint(Sketcher.Constraint("Coincident", 1, 2, 2, 1))
sketch10.addConstraint(Sketcher.Constraint("Coincident", 2, 2, 3, 1))
sketch10.addConstraint(Sketcher.Constraint("Coincident", 3, 2, 4, 1))
sketch10.addConstraint(Sketcher.Constraint("Coincident", 4, 2, 5, 1))
sketch10.addConstraint(Sketcher.Constraint("Coincident", 5, 2, 0, 1))
sketch10.addConstraint(Sketcher.Constraint("Horizontal", 0))
sketch10.addConstraint(Sketcher.Constraint("Horizontal", 3))
sketch10.addConstraint(Sketcher.Constraint("Parallel", 1, 4))
sketch10.addConstraint(Sketcher.Constraint("Parallel", 2, 5))
sketch10.addConstraint(Sketcher.Constraint("Horizontal", 1, 2, 4, 2))
sketch10.addConstraint(Sketcher.Constraint("Vertical", 0, 2, 2, 2))
sketch10.addConstraint(Sketcher.Constraint("Vertical", 3, 2, 5, 2))
sketch10.addConstraint(Sketcher.Constraint("Angle", 1, Q("60 deg")))
sketch10.addConstraint(Sketcher.Constraint("DistanceY", 0, 2, 1, 2, Q("5 mm")))
sketch10.addConstraint(Sketcher.Constraint("DistanceY", 0, 2, -1, 1, Q("24.75 mm")))
sketch10.addConstraint(Sketcher.Constraint("DistanceX", 0, 1, 0, 2, Q("5.773503 mm")))
sketch10.addConstraint(Sketcher.Constraint("DistanceX", 3, 2, -1, 1, Q("12.183881 mm")))
pad7 = body.newObject("PartDesign::Pad", "Pad006")
pad7.Profile = sketch10
pad7.Type = "TwoLengths"
pad7.Length = 1
pad7.Length2 = 5

doc.recompute()
